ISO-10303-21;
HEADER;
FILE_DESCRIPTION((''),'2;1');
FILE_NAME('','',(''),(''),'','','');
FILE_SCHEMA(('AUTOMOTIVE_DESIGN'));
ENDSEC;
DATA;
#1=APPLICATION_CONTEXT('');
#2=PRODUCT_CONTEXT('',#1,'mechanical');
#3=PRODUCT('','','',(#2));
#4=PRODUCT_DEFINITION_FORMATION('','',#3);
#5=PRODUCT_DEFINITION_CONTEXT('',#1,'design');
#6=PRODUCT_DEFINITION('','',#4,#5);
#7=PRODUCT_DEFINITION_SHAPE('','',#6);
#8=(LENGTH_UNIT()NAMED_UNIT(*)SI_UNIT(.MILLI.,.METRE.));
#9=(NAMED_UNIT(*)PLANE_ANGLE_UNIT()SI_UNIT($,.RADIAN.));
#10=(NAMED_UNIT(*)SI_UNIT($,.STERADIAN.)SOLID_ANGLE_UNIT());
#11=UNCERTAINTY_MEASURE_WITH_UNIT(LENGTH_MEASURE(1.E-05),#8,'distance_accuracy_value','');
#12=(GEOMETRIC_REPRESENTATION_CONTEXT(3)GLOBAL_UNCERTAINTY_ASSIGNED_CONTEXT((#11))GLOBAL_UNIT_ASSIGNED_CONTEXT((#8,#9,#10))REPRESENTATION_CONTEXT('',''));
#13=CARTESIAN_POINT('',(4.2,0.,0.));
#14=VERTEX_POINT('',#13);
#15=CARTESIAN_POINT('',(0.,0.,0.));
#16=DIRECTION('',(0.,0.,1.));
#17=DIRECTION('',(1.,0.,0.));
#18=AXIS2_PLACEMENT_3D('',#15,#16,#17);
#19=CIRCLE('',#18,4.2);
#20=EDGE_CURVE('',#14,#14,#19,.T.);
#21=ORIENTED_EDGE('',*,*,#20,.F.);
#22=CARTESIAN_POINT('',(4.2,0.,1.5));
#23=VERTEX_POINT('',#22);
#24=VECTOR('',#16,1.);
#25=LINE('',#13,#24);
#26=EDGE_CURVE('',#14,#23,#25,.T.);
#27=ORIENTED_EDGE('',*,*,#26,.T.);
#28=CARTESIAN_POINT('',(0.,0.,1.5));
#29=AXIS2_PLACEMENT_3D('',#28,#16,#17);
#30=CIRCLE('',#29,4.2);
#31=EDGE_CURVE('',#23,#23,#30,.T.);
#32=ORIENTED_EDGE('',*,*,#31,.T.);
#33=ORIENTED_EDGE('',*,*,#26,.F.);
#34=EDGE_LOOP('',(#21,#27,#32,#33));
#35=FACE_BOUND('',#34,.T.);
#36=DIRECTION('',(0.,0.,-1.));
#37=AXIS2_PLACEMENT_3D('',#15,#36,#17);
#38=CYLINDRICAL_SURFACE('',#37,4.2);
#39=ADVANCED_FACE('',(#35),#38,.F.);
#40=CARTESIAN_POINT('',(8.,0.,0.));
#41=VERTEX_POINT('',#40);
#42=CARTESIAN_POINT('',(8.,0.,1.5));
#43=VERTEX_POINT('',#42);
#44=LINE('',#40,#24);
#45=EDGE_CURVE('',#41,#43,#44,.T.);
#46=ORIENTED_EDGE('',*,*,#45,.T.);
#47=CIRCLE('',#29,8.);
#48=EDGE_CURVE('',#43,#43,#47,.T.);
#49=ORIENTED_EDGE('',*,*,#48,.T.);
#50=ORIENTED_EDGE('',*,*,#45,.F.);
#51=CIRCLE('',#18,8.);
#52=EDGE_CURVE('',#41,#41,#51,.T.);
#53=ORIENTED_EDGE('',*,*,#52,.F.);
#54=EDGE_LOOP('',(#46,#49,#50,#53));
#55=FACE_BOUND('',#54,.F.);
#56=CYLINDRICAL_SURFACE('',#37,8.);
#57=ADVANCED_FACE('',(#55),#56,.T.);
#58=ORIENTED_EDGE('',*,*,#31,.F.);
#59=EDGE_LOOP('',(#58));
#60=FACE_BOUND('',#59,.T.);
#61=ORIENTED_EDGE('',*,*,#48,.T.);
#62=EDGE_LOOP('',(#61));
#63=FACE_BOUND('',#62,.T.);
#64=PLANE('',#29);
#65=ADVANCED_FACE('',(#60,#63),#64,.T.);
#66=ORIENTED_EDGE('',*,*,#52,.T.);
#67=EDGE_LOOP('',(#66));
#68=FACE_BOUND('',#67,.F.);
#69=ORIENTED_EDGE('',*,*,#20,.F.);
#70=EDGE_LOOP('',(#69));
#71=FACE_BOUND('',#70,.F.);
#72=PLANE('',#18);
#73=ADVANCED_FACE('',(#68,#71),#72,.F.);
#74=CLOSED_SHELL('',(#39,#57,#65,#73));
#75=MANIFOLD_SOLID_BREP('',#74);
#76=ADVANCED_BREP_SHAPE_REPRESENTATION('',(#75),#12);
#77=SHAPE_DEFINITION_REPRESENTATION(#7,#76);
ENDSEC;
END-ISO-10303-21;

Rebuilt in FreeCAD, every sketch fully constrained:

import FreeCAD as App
import Part
import Sketcher
from FreeCAD import Vector

doc = App.newDocument("Part")
body = doc.addObject("PartDesign::Body", "Body")

# Sketch on XY plane
sketch1 = body.newObject("Sketcher::SketchObject", "Sketch")
sketch1.AttachmentSupport = (doc.getObject("XY_Plane"), [""])
sketch1.MapMode = "FlatFace"
sketch1.addGeometry([
    Part.Circle(Vector(0, 0, 0), Vector(0, 0, 1), 8),
    Part.Circle(Vector(0, 0, 0), Vector(0, 0, 1), 4.2),
], False)
sketch1.addConstraint([
    Sketcher.Constraint("Coincident", 0, 3, -1, 1),
    Sketcher.Constraint("Coincident", 1, 3, -1, 1),
    Sketcher.Constraint("Diameter", 0, 16.0),
    Sketcher.Constraint("Diameter", 1, 8.4),
])
pad1 = body.newObject("PartDesign::Pad", "Pad")
pad1.Profile = sketch1
pad1.Length = 1.5

doc.recompute()
